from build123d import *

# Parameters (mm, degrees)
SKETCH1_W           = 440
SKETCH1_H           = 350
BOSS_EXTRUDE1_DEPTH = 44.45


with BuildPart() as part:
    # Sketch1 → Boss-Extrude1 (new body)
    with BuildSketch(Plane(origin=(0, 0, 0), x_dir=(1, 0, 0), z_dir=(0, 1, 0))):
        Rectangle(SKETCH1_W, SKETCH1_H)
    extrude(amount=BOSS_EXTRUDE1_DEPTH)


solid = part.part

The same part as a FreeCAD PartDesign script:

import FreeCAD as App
import Part
import Sketcher

V = App.Vector
Q = App.Units.Quantity


def add_polygon(sketch, points):
    """Adds a closed chain of lines whose ends are joined by coincident constraints."""
    first, n = sketch.GeometryCount, len(points)
    for a, b in zip(points, points[1:] + points[:1]):
        sketch.addGeometry(Part.LineSegment(App.Vector(*a, 0), App.Vector(*b, 0)), False)
    for i in range(n):
        sketch.addConstraint(Sketcher.Constraint("Coincident", first + i, 2, first + (i + 1) % n, 1))

doc = App.newDocument("Part")
body = doc.addObject("PartDesign::Body", "Body")

# Sketch on XZ plane
sketch1 = doc.addObject("Sketcher::SketchObject", "Sketch")
body.addObject(sketch1)
sketch1.AttachmentSupport = (doc.XZ_Plane, [""])
sketch1.MapMode = "FlatFace"
add_polygon(sketch1, [(-220, -175), (-220, 175), (220, 175), (220, -175)])  # lines 0-3
sketch1.addConstraint([
    Sketcher.Constraint("Vertical", 0),
    Sketcher.Constraint("Horizontal", 1),
    Sketcher.Constraint("Vertical", 2),
    Sketcher.Constraint("Horizontal", 3),
    Sketcher.Constraint("Symmetric", 0, 2, 2, 2, -1, 1),
    Sketcher.Constraint("DistanceX", 1, 1, 1, 2, Q("440 mm")),
    Sketcher.Constraint("DistanceY", 0, 1, 0, 2, Q("350 mm")),
])
pad1 = doc.addObject("PartDesign::Pad", "Pad")
body.addObject(pad1)
pad1.Profile = sketch1
pad1.Length = 44.45
pad1.Reversed = True

doc.recompute()
